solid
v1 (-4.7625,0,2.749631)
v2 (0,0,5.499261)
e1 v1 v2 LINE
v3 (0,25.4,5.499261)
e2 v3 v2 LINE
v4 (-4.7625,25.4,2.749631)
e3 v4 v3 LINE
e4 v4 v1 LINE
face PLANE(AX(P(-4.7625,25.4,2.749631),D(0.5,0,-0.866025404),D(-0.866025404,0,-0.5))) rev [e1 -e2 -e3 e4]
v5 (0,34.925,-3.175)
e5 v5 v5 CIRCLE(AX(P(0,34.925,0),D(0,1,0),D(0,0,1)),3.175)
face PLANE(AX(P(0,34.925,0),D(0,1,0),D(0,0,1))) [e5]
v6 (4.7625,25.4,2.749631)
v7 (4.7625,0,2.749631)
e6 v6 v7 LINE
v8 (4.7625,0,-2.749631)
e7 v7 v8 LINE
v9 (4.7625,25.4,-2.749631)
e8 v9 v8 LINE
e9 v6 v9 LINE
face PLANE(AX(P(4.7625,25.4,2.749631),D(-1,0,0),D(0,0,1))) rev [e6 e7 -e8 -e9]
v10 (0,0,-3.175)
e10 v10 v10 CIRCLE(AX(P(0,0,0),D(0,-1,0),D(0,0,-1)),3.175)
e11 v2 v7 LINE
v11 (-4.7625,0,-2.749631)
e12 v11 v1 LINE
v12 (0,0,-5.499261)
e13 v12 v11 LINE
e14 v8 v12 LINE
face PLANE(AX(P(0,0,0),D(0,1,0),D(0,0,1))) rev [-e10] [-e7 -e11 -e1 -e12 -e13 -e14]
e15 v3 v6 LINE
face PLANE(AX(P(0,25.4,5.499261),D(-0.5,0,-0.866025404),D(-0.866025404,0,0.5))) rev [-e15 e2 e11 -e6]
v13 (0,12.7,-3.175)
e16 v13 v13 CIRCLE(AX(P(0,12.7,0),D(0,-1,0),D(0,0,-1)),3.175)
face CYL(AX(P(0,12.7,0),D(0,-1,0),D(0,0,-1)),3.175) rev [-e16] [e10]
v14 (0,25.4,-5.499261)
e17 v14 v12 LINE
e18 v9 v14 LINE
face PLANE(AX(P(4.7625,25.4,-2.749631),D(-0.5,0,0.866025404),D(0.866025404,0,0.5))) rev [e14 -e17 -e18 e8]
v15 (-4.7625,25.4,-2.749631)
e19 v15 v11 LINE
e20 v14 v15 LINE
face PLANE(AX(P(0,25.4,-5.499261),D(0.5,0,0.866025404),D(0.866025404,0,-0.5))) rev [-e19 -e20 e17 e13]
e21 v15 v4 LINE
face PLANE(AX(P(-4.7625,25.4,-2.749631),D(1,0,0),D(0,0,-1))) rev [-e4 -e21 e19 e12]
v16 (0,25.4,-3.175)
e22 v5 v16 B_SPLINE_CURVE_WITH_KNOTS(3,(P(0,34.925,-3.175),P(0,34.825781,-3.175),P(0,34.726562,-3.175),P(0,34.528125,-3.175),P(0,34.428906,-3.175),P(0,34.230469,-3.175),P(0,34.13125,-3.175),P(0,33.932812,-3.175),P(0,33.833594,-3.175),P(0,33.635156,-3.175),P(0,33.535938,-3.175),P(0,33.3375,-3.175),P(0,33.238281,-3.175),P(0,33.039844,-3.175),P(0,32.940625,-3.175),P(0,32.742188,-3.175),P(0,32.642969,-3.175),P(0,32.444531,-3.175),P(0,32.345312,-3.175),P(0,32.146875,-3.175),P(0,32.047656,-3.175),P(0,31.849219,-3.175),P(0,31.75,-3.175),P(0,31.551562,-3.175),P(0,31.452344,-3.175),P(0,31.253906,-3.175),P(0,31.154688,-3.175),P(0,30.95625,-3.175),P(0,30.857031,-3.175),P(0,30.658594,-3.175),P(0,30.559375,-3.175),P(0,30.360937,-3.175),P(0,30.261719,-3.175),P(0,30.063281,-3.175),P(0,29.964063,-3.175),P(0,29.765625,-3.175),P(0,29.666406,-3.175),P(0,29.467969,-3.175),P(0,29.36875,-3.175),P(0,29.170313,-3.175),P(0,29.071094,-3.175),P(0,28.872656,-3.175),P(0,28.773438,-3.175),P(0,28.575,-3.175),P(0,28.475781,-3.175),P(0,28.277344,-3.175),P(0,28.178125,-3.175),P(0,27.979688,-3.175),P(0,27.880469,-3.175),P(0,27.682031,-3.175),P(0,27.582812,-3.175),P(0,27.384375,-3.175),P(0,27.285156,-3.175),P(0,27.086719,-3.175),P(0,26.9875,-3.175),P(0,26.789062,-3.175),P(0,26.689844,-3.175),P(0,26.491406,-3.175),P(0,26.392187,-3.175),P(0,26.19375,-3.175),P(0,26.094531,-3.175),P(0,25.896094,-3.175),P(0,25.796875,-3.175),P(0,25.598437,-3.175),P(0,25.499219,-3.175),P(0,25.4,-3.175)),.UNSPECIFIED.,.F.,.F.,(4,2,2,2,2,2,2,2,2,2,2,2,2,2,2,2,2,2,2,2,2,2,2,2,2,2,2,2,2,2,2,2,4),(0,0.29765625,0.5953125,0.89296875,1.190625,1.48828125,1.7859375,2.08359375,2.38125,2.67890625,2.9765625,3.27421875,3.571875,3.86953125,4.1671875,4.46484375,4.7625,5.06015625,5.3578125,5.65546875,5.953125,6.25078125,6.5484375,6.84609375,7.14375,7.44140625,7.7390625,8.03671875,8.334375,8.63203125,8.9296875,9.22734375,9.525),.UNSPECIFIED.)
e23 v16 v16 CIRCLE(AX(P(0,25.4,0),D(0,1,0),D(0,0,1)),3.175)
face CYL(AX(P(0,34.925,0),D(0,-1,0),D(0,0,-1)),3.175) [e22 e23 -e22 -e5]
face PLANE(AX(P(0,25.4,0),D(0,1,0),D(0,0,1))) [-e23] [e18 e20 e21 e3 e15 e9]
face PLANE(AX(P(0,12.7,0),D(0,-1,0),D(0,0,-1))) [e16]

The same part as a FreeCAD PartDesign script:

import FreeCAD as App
import Part
import Sketcher
Q = App.Units.Quantity


def add_polygon(sketch, points):
    """Adds a closed chain of lines whose ends are joined by coincident constraints."""
    first, n = sketch.GeometryCount, len(points)
    for a, b in zip(points, points[1:] + points[:1]):
        sketch.addGeometry(Part.LineSegment(App.Vector(*a, 0), App.Vector(*b, 0)), False)
    for i in range(n):
        sketch.addConstraint(Sketcher.Constraint("Coincident", first + i, 2, first + (i + 1) % n, 1))

doc = App.newDocument("Part")
body = doc.addObject("PartDesign::Body", "Body")

# Sketch on XZ plane
sketch1 = doc.addObject("Sketcher::SketchObject", "Sketch")
body.addObject(sketch1)
sketch1.AttachmentSupport = (doc.XZ_Plane, [""])
sketch1.MapMode = "FlatFace"
add_polygon(sketch1, [(0, -5), (-5, -3), (-5, 3), (0, 5), (5, 3), (5, -3)])  # lines 0-5
sketch1.addConstraint(Sketcher.Constraint("Vertical", 1))
sketch1.addConstraint(Sketcher.Constraint("Vertical", 4))
sketch1.addConstraint(Sketcher.Constraint("Symmetric", 0, 2, 3, 2, -1, 1))
sketch1.addConstraint(Sketcher.Constraint("Symmetric", 2, 2, 5, 2, -1, 1))
sketch1.addConstraint(Sketcher.Constraint("PointOnObject", 2, 2, -2))
sketch1.addConstraint(Sketcher.Constraint("Parallel", 2, 5))
sketch1.addConstraint(Sketcher.Constraint("Horizontal", 1, 2, 3, 2))
sketch1.addConstraint(Sketcher.Constraint("Angle", 0, Q("150 deg")))
sketch1.addConstraint(Sketcher.Constraint("DistanceX", 0, 2, -1, 1, Q("0.1875 in")))
sketch1.addConstraint(Sketcher.Constraint("DistanceY", 1, 1, 1, 2, 5.499261))
pad1 = doc.addObject("PartDesign::Pad", "Pad")
body.addObject(pad1)
pad1.Profile = sketch1
pad1.Length = Q("1 in")
pad1.Reversed = True

# Sketch on XZ plane
sketch2 = doc.addObject("Sketcher::SketchObject", "Sketch001")
body.addObject(sketch2)
sketch2.AttachmentSupport = (doc.XZ_Plane, [""])
sketch2.MapMode = "FlatFace"
sketch2.addGeometry(Part.Circle(App.Vector(0, 0, 0), App.Vector(0, 0, 1), 3.2), False)
sketch2.addConstraint(Sketcher.Constraint("Coincident", 0, 3, -1, 1))
sketch2.addConstraint(Sketcher.Constraint("Diameter", 0, Q("0.25 in")))
pocket1 = doc.addObject("PartDesign::Pocket", "Pocket")
body.addObject(pocket1)
pocket1.Profile = sketch2
pocket1.Length = Q("0.5 in")

# Sketch on XZ plane
sketch3 = doc.addObject("Sketcher::SketchObject", "Sketch002")
body.addObject(sketch3)
sketch3.AttachmentSupport = (doc.XZ_Plane, [""])
sketch3.MapMode = "FlatFace"
sketch3.AttachmentOffset = App.Placement(App.Vector(0, 0, -1 * 25.4), App.Rotation())
sketch3.addGeometry(Part.Circle(App.Vector(0, 0, 0), App.Vector(0, 0, 1), 3.2), False)
sketch3.addConstraint(Sketcher.Constraint("Coincident", 0, 3, -1, 1))
sketch3.addConstraint(Sketcher.Constraint("Diameter", 0, Q("0.25 in")))
pad2 = doc.addObject("PartDesign::Pad", "Pad001")
body.addObject(pad2)
pad2.Profile = sketch3
pad2.Length = Q("0.375 in")
pad2.Reversed = True

doc.recompute()
